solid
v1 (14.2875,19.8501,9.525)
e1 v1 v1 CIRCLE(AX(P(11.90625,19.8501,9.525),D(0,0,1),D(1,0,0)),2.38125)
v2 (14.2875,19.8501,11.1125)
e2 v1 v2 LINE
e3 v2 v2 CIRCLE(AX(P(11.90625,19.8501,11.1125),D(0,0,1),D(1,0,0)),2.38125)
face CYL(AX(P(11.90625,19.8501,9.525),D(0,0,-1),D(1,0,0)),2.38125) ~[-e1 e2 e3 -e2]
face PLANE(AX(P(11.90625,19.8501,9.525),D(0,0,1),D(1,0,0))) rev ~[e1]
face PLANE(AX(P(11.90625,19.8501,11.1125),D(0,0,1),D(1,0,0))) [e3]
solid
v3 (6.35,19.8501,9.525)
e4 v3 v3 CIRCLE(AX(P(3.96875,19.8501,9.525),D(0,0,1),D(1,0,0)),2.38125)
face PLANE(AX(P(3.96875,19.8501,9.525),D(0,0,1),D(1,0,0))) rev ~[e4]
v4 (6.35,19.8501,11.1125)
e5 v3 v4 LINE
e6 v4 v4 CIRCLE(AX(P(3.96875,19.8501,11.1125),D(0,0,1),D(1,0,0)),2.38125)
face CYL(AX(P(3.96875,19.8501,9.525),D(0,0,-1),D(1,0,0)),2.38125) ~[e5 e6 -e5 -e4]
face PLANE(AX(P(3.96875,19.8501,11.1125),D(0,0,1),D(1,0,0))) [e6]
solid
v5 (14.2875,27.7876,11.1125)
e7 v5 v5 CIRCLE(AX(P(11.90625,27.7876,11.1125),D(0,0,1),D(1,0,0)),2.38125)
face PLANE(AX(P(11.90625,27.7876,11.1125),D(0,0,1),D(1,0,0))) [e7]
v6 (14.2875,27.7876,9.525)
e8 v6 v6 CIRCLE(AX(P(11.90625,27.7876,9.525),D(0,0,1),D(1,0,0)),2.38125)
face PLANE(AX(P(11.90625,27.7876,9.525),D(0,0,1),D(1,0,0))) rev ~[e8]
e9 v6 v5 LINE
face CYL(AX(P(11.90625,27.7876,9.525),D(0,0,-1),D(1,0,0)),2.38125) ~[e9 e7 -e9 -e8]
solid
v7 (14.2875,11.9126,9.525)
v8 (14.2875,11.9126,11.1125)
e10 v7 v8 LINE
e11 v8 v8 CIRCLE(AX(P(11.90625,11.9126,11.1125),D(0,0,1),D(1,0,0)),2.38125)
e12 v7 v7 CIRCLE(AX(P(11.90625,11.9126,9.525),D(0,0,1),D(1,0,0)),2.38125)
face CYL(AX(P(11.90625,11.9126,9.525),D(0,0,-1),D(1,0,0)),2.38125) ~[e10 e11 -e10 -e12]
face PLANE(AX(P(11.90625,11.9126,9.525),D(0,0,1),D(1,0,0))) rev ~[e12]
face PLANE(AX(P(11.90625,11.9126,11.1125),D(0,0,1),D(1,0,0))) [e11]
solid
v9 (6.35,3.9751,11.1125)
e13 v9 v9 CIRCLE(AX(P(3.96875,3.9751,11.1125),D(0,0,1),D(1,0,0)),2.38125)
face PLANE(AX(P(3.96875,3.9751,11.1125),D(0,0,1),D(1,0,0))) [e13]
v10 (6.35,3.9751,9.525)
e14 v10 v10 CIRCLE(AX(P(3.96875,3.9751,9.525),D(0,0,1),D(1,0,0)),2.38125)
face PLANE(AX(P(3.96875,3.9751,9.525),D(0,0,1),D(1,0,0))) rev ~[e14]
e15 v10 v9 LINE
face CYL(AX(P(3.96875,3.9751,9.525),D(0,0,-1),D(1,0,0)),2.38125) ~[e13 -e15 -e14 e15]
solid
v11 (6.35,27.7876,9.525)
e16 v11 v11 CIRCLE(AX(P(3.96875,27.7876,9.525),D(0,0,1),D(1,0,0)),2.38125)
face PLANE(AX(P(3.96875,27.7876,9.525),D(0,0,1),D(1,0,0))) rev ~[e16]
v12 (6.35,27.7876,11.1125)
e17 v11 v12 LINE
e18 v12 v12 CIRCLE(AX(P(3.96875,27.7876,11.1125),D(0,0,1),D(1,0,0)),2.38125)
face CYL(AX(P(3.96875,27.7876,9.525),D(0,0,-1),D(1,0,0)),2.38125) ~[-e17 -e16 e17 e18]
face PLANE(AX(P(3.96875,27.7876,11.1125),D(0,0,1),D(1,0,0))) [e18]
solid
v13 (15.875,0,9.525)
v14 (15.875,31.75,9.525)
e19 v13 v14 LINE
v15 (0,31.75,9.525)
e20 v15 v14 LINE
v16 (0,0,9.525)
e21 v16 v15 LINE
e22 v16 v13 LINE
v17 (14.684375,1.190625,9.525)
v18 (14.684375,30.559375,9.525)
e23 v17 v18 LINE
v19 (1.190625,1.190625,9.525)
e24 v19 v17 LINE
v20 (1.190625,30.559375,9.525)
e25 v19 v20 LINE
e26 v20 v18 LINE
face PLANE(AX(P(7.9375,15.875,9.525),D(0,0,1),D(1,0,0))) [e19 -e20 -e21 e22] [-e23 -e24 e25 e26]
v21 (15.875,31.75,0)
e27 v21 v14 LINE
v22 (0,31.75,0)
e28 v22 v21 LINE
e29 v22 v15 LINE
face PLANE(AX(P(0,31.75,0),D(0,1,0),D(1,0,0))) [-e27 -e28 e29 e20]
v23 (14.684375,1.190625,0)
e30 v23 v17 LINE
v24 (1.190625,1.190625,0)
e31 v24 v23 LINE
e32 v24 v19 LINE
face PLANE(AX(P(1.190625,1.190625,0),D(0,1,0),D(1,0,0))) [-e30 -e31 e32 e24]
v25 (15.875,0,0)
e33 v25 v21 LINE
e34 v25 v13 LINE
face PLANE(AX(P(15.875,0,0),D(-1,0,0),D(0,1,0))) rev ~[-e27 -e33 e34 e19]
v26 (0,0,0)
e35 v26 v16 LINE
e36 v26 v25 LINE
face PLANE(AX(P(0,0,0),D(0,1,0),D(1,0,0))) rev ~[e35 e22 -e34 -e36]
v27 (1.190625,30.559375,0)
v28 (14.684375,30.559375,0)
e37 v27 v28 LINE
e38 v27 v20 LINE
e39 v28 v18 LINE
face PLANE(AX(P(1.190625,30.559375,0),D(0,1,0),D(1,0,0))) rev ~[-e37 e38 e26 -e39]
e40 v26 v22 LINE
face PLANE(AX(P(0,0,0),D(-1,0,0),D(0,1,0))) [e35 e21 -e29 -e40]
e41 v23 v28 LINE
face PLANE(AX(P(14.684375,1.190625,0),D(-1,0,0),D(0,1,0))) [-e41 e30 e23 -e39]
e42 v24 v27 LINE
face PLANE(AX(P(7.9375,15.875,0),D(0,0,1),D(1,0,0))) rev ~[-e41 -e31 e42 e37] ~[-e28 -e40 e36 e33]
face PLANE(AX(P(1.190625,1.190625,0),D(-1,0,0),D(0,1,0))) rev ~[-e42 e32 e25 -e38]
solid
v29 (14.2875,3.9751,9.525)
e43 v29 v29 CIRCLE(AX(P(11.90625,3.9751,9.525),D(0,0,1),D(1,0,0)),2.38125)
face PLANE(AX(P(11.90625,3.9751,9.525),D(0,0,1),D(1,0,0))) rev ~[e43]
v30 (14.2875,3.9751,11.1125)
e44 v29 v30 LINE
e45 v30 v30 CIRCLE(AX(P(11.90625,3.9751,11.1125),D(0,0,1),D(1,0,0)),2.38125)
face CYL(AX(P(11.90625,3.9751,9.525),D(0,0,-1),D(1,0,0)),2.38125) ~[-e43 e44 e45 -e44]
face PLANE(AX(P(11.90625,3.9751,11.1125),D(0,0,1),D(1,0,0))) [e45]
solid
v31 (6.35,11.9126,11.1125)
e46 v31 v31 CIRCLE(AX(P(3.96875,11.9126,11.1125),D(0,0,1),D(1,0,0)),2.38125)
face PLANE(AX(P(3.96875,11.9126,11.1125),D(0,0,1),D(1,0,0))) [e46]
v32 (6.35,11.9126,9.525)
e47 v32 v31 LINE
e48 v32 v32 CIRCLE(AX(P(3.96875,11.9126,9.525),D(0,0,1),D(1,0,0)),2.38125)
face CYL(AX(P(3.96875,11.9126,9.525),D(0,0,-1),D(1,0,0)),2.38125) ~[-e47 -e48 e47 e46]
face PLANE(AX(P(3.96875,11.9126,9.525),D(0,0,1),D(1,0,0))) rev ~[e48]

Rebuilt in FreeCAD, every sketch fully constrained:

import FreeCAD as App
import Part
import Sketcher

V = App.Vector
Q = App.Units.Quantity

doc = App.newDocument("Part")
body = doc.addObject("PartDesign::Body", "Body")

sketch1 = body.newObject("Sketcher::SketchObject", "Sketch")
sketch1.AttachmentSupport = (doc.getObject("XY_Plane"), [""])
sketch1.MapMode = "FlatFace"
sketch1.addGeometry([
    Part.LineSegment(V(0, 31.75, 0), V(0, 0, 0)),
    Part.LineSegment(V(0, 0, 0), V(15.875, 0, 0)),
    Part.LineSegment(V(15.875, 0, 0), V(15.875, 31.75, 0)),
    Part.LineSegment(V(15.875, 31.75, 0), V(0, 31.75, 0)),
    Part.LineSegment(V(14.684375, 1.190625, 0), V(1.190625, 1.190625, 0)),
    Part.LineSegment(V(1.190625, 1.190625, 0), V(1.190625, 30.559375, 0)),
    Part.LineSegment(V(1.190625, 30.559375, 0), V(14.684375, 30.559375, 0)),
    Part.LineSegment(V(14.684375, 30.559375, 0), V(14.684375, 1.190625, 0)),
], False)
sketch1.addConstraint([
    Sketcher.Constraint("Coincident", 0, 2, 1, 1),
    Sketcher.Constraint("Coincident", 1, 2, 2, 1),
    Sketcher.Constraint("Coincident", 2, 2, 3, 1),
    Sketcher.Constraint("Coincident", 3, 2, 0, 1),
    Sketcher.Constraint("Coincident", 4, 2, 5, 1),
    Sketcher.Constraint("Coincident", 5, 2, 6, 1),
    Sketcher.Constraint("Coincident", 6, 2, 7, 1),
    Sketcher.Constraint("Coincident", 7, 2, 4, 1),
    Sketcher.Constraint("Vertical", 0),
    Sketcher.Constraint("Horizontal", 1),
    Sketcher.Constraint("Vertical", 2),
    Sketcher.Constraint("Horizontal", 3),
    Sketcher.Constraint("Horizontal", 4),
    Sketcher.Constraint("Vertical", 5),
    Sketcher.Constraint("Horizontal", 6),
    Sketcher.Constraint("Vertical", 7),
    Sketcher.Constraint("Coincident", 0, 2, -1, 1),
    Sketcher.Constraint("DistanceY", 0, 2, 0, 1, Q("1.25 in")),
    Sketcher.Constraint("DistanceX", 1, 1, 1, 2, Q("0.625 in")),
    Sketcher.Constraint("DistanceX", 4, 2, 4, 1, Q("0.53125 in")),
    Sketcher.Constraint("DistanceY", 5, 1, 5, 2, Q("1.15625 in")),
    Sketcher.Constraint("DistanceX", -1, 1, 4, 2, Q("0.046875 in")),
    Sketcher.Constraint("DistanceY", -1, 1, 4, 2, Q("0.046875 in")),
])
pad1 = body.newObject("PartDesign::Pad", "Pad")
pad1.Profile = sketch1
pad1.Length = Q("0.375 in")
body2 = doc.addObject("PartDesign::Body", "Body001")
body2.AllowCompound = True

sketch2 = body2.newObject("Sketcher::SketchObject", "Sketch001")
sketch2.AttachmentSupport = (doc.getObject("XY_Plane001"), [""])
sketch2.MapMode = "FlatFace"
sketch2.AttachmentOffset = App.Placement(V(0, 0, 0.375 * 25.4), App.Rotation())
sketch2.addGeometry([
    Part.Circle(V(3.96875, 27.7876, 0), V(0, 0, 1), 2.38125),
    Part.Circle(V(11.90625, 27.7876, 0), V(0, 0, 1), 2.38125),
    Part.Circle(V(3.96875, 19.8501, 0), V(0, 0, 1), 2.38125),
    Part.Circle(V(11.90625, 19.8501, 0), V(0, 0, 1), 2.38125),
    Part.Circle(V(3.96875, 11.9126, 0), V(0, 0, 1), 2.38125),
    Part.Circle(V(11.90625, 11.9126, 0), V(0, 0, 1), 2.38125),
    Part.Circle(V(3.96875, 3.9751, 0), V(0, 0, 1), 2.38125),
    Part.Circle(V(11.90625, 3.9751, 0), V(0, 0, 1), 2.38125),
], False)
sketch2.addConstraint([
    Sketcher.Constraint("Equal", 0, 1),
    Sketcher.Constraint("Equal", 1, 2),
    Sketcher.Constraint("Equal", 2, 3),
    Sketcher.Constraint("Equal", 3, 4),
    Sketcher.Constraint("Equal", 4, 5),
    Sketcher.Constraint("Equal", 5, 6),
    Sketcher.Constraint("Equal", 6, 7),
    Sketcher.Constraint("Horizontal", 0, 3, 1, 3),
    Sketcher.Constraint("Horizontal", 2, 3, 3, 3),
    Sketcher.Constraint("Horizontal", 4, 3, 5, 3),
    Sketcher.Constraint("Horizontal", 6, 3, 7, 3),
    Sketcher.Constraint("Vertical", 0, 3, 2, 3),
    Sketcher.Constraint("Vertical", 1, 3, 3, 3),
    Sketcher.Constraint("Vertical", 2, 3, 4, 3),
    Sketcher.Constraint("Vertical", 3, 3, 5, 3),
    Sketcher.Constraint("Vertical", 4, 3, 6, 3),
    Sketcher.Constraint("Vertical", 5, 3, 7, 3),
    Sketcher.Constraint("Diameter", 0, Q("0.1875 in")),
    Sketcher.Constraint("DistanceX", -1, 1, 0, 3, Q("0.15625 in")),
    Sketcher.Constraint("DistanceY", -1, 1, 0, 3, Q("1.094 in")),
    Sketcher.Constraint("DistanceX", -1, 1, 1, 3, Q("0.46875 in")),
    Sketcher.Constraint("DistanceY", -1, 1, 4, 3, Q("0.469 in")),
    Sketcher.Constraint("DistanceY", 2, 3, 0, 3, Q("0.3125 in")),
    Sketcher.Constraint("DistanceY", 6, 3, 4, 3, Q("0.3125 in")),
])
pad2 = body2.newObject("PartDesign::Pad", "Pad001")
pad2.Profile = sketch2
pad2.Length = Q("0.0625 in")

doc.recompute()
